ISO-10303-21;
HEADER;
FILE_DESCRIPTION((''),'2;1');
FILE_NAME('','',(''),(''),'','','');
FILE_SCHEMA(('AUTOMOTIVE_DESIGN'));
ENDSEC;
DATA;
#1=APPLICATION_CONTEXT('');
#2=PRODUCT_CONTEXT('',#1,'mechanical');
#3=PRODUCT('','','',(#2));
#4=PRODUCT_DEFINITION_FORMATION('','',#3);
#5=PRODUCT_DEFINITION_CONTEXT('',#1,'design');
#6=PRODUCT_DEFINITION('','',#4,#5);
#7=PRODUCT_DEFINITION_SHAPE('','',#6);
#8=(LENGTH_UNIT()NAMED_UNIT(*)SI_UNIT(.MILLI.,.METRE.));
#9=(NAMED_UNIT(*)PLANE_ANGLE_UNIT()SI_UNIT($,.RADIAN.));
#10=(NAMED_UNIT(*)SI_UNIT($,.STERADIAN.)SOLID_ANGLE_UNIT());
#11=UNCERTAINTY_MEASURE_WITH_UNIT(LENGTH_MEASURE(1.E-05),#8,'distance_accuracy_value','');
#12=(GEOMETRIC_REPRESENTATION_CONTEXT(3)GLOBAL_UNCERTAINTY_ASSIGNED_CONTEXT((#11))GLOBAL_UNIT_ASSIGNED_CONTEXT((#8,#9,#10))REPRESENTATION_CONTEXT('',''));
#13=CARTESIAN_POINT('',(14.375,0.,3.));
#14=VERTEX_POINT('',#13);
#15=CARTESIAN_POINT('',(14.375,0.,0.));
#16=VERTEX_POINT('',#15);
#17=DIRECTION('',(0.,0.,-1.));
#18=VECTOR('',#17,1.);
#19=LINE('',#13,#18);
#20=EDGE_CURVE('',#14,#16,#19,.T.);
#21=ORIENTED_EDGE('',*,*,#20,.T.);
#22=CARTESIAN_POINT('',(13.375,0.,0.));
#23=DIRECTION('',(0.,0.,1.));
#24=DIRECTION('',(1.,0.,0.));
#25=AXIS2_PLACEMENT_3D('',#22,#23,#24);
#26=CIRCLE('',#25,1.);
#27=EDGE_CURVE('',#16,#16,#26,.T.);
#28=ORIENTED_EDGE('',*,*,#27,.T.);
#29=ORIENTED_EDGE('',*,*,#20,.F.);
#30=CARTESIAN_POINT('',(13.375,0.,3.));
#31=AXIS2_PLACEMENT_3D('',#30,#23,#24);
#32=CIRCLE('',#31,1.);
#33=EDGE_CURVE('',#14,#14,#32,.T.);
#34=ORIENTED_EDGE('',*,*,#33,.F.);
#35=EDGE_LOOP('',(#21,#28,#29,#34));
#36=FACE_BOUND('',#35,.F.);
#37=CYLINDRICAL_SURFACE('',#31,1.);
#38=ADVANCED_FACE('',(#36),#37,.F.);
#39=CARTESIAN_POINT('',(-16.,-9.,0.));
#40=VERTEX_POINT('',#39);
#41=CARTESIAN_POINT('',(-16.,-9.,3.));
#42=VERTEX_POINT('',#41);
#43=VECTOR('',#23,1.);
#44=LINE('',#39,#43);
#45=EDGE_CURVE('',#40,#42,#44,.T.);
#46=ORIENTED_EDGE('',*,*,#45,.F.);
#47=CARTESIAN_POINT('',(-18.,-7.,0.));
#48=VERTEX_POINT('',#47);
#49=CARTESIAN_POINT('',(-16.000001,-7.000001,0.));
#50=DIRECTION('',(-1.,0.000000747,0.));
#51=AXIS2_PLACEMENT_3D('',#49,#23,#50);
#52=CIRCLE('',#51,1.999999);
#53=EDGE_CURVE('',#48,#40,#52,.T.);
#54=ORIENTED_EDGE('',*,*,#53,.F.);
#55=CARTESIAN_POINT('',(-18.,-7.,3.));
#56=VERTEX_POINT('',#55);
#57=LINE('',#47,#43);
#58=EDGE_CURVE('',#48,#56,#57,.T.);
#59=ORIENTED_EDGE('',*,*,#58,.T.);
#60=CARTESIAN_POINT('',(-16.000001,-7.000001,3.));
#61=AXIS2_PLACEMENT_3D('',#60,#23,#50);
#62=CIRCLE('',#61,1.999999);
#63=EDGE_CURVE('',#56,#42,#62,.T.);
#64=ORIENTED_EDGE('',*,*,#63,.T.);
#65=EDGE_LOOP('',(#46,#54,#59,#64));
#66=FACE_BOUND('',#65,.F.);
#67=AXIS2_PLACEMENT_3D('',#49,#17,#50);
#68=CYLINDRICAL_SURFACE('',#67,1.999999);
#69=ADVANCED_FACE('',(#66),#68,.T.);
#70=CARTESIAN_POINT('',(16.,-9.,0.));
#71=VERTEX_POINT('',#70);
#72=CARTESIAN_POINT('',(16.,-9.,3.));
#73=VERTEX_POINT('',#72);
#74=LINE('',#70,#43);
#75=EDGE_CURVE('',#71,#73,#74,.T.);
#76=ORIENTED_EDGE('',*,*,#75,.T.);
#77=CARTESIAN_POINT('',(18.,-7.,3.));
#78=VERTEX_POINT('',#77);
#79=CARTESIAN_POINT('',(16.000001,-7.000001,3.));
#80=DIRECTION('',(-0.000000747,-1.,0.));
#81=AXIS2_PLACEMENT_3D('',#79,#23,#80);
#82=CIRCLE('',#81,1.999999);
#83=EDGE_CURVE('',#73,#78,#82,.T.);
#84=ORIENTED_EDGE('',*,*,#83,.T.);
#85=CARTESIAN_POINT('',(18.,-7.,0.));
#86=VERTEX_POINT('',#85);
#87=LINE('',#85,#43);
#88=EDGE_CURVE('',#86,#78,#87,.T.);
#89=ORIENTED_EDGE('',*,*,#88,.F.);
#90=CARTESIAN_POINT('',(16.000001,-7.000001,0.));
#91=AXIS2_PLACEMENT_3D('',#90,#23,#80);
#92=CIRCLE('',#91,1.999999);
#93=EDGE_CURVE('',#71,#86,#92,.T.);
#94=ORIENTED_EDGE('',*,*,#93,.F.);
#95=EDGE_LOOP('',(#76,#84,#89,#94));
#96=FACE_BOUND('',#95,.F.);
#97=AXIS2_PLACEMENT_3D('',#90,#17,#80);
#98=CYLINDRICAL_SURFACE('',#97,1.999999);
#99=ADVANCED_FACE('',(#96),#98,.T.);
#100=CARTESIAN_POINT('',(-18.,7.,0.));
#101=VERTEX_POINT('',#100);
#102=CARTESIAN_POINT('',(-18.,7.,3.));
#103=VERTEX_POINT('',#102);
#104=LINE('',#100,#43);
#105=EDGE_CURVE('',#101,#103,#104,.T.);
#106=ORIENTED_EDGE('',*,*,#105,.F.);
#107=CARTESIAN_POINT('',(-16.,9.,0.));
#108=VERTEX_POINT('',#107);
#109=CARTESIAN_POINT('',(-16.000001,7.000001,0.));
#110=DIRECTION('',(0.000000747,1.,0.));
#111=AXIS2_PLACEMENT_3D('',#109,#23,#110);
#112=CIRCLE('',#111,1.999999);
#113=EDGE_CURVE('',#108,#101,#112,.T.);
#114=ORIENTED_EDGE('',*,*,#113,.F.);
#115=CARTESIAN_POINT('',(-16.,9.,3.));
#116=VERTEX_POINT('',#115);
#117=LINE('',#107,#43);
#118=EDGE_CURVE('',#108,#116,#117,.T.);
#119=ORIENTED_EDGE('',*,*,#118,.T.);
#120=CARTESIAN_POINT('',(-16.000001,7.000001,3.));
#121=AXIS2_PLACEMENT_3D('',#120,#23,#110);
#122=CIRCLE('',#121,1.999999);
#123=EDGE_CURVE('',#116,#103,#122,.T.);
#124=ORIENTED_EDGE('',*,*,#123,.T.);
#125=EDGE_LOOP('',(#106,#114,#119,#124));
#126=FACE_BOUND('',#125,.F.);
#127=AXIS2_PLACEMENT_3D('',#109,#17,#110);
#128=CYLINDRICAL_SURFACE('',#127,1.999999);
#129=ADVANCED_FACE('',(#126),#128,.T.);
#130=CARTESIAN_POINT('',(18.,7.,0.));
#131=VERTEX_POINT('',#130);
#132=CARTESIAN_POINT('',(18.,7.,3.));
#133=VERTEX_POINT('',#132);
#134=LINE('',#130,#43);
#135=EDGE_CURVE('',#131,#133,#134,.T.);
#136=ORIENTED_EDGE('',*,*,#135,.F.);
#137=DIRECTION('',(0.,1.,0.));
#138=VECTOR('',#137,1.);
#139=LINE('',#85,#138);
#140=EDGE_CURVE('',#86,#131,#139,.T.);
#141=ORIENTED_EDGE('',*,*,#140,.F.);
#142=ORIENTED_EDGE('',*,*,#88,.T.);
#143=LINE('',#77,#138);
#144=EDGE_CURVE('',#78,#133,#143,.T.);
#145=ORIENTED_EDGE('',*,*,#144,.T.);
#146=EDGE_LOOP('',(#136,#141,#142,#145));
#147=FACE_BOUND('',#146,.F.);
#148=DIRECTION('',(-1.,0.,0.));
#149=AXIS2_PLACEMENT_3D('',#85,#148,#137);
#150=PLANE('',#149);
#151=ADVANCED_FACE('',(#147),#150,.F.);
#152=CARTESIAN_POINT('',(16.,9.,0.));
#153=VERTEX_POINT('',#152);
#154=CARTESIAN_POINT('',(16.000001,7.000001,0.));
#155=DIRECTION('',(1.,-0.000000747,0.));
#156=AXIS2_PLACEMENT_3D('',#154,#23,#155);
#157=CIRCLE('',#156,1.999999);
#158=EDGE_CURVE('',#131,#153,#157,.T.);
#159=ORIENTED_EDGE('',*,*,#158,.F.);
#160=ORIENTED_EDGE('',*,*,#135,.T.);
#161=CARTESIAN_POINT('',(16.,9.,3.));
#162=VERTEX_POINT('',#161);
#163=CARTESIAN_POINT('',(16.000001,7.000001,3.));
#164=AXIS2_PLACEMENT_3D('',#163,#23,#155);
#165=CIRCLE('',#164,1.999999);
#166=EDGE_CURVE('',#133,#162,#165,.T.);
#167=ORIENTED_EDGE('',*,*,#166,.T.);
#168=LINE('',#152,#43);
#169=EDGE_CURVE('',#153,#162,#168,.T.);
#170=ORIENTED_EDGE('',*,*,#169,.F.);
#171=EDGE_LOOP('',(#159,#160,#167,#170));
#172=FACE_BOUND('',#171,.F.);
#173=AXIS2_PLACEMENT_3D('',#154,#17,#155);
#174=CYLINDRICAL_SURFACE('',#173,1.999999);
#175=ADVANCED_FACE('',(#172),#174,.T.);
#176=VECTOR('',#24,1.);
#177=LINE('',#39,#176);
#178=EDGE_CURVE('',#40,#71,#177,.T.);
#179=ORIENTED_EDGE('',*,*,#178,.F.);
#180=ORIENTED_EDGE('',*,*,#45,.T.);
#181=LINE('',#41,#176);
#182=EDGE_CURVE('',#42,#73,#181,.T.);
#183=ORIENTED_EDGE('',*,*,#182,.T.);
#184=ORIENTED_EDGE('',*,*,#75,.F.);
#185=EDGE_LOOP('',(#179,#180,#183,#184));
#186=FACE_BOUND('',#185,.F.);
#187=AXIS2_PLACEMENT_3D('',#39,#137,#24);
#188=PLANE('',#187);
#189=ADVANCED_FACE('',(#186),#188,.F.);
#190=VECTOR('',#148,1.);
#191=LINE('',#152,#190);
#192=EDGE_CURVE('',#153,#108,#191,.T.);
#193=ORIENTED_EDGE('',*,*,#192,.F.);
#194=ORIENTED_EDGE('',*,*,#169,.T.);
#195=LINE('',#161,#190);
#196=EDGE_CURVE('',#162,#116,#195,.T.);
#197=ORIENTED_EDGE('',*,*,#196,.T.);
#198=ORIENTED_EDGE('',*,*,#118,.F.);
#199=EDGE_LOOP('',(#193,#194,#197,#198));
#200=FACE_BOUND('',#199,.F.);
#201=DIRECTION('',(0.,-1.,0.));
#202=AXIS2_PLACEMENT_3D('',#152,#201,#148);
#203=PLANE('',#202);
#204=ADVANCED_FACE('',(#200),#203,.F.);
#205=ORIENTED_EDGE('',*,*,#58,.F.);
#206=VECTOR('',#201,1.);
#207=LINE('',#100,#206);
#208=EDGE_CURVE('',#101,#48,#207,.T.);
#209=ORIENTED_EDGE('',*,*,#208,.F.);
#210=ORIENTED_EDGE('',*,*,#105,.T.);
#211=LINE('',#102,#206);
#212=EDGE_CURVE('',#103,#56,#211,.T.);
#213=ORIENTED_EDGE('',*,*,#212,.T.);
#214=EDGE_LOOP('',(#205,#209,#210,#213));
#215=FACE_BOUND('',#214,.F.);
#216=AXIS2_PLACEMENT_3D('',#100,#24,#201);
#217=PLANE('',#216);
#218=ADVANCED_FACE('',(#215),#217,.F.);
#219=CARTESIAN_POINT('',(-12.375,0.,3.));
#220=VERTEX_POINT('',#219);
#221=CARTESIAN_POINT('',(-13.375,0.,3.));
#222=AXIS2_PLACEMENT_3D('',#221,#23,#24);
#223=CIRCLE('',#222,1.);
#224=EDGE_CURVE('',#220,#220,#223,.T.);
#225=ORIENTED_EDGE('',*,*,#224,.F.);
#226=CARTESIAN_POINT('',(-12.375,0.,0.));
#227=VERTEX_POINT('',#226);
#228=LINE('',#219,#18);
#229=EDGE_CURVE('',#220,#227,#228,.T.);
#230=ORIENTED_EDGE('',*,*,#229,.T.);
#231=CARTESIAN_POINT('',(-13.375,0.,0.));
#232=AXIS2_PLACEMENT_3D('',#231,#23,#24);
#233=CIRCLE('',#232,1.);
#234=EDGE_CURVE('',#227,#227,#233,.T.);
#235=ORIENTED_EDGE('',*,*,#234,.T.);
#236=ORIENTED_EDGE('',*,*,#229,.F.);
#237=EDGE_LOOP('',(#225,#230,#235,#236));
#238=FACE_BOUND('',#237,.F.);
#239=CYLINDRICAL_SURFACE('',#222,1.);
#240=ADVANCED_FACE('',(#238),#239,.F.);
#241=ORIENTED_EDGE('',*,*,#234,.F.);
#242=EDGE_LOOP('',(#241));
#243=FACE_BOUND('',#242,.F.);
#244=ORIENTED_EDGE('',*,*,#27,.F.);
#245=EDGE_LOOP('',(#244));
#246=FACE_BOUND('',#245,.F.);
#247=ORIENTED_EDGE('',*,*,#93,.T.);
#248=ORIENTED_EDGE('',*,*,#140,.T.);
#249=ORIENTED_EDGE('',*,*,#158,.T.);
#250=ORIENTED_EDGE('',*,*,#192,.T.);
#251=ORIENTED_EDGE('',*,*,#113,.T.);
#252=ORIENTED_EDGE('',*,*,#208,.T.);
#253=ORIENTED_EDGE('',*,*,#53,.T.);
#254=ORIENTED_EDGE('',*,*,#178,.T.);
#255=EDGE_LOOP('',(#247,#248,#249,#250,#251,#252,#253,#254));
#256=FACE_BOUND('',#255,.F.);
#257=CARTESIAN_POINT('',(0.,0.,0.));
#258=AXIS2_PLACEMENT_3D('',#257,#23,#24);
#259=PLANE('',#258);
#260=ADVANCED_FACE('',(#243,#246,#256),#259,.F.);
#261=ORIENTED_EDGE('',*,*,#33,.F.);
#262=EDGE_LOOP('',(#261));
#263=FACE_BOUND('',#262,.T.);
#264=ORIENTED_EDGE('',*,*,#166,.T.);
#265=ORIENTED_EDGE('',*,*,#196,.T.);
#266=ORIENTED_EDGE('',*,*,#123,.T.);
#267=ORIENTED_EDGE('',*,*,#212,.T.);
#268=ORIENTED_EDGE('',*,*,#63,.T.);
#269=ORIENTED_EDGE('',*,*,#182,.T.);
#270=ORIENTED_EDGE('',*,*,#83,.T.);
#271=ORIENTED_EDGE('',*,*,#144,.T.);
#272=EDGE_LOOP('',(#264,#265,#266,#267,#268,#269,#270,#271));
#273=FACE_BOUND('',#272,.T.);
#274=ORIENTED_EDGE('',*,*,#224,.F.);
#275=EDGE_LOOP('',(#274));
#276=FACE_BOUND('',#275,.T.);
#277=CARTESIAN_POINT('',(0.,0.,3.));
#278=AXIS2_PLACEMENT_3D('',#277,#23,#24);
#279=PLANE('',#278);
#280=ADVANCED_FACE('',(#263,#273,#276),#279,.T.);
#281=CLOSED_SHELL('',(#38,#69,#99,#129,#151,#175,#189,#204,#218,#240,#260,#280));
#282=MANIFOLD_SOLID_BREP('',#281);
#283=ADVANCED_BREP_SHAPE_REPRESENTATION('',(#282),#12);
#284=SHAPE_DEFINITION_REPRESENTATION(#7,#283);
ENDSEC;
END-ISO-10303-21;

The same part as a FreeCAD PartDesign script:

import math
import FreeCAD as App
import Part
import Sketcher
Q = App.Units.Quantity

doc = App.newDocument("Part")
params = doc.addObject("Spreadsheet::Sheet", "Params")
for row, (alias, value) in enumerate([
    ("sketch1_radius", "1.999999 mm"),
    ("sketch1_width", "32 mm"),
    ("sketch1_height", "14 mm"),
    ("pad1_length", "3 mm"),
    ("sketch2_diameter", "2 mm"),
], start=1):
    params.set(f"A{row}", alias)
    params.set(f"B{row}", "=" + value)
    params.setAlias(f"B{row}", alias)

body = doc.addObject("PartDesign::Body", "Body")

# Sketch on XY plane
sketch1 = body.newObject("Sketcher::SketchObject", "Sketch")
sketch1.AttachmentSupport = (doc.getObject("XY_Plane"), [""])
sketch1.MapMode = "FlatFace"
sketch1.addGeometry(Part.LineSegment(App.Vector(-16, -9, 0), App.Vector(16, -9, 0)), False)
sketch1.addGeometry(Part.ArcOfCircle(Part.Circle(App.Vector(16, -7, 0), App.Vector(0, 0, 1), 2), math.radians(-90), math.radians(0)), False)
sketch1.addGeometry(Part.LineSegment(App.Vector(18, -7, 0), App.Vector(18, 7, 0)), False)
sketch1.addGeometry(Part.ArcOfCircle(Part.Circle(App.Vector(16, 7, 0), App.Vector(0, 0, 1), 2), math.radians(0), math.radians(90)), False)
sketch1.addGeometry(Part.LineSegment(App.Vector(16, 9, 0), App.Vector(-16, 9, 0)), False)
sketch1.addGeometry(Part.ArcOfCircle(Part.Circle(App.Vector(-16, 7, 0), App.Vector(0, 0, 1), 2), math.radians(90), math.radians(180)), False)
sketch1.addGeometry(Part.LineSegment(App.Vector(-18, 7, 0), App.Vector(-18, -7, 0)), False)
sketch1.addGeometry(Part.ArcOfCircle(Part.Circle(App.Vector(-16, -7, 0), App.Vector(0, 0, 1), 2), math.radians(180), math.radians(270)), False)
sketch1.addConstraint(Sketcher.Constraint("Tangent", 0, 2, 1, 1))
sketch1.addConstraint(Sketcher.Constraint("Tangent", 1, 2, 2, 1))
sketch1.addConstraint(Sketcher.Constraint("Tangent", 2, 2, 3, 1))
sketch1.addConstraint(Sketcher.Constraint("Tangent", 3, 2, 4, 1))
sketch1.addConstraint(Sketcher.Constraint("Tangent", 4, 2, 5, 1))
sketch1.addConstraint(Sketcher.Constraint("Tangent", 5, 2, 6, 1))
sketch1.addConstraint(Sketcher.Constraint("Tangent", 6, 2, 7, 1))
sketch1.addConstraint(Sketcher.Constraint("Tangent", 7, 2, 0, 1))
sketch1.addConstraint(Sketcher.Constraint("Horizontal", 0))
sketch1.addConstraint(Sketcher.Constraint("Vertical", 2))
sketch1.addConstraint(Sketcher.Constraint("Horizontal", 4))
sketch1.addConstraint(Sketcher.Constraint("Vertical", 6))
sketch1.addConstraint(Sketcher.Constraint("Equal", 1, 3))
sketch1.addConstraint(Sketcher.Constraint("Equal", 3, 5))
sketch1.addConstraint(Sketcher.Constraint("Equal", 5, 7))
sketch1.addConstraint(Sketcher.Constraint("Symmetric", 1, 3, 5, 3, -1, 1))
sketch1.addConstraint(Sketcher.Constraint("Radius", 1, Q("1.999999 mm")))
sketch1.addConstraint(Sketcher.Constraint("DistanceX", 0, 1, 0, 2, Q("32 mm")))
sketch1.addConstraint(Sketcher.Constraint("DistanceY", 2, 1, 2, 2, Q("14 mm")))
sketch1.setExpression("Constraints[16]", "Params.sketch1_radius")
sketch1.setExpression("Constraints[17]", "Params.sketch1_width")
sketch1.setExpression("Constraints[18]", "Params.sketch1_height")
pad1 = body.newObject("PartDesign::Pad", "Pad")
pad1.Profile = sketch1
pad1.setExpression("Length", "Params.pad1_length")

# Sketch on XY plane
sketch2 = body.newObject("Sketcher::SketchObject", "Sketch001")
sketch2.AttachmentSupport = (doc.getObject("XY_Plane"), [""])
sketch2.MapMode = "FlatFace"
sketch2.AttachmentOffset = App.Placement(App.Vector(0, 0, 3), App.Rotation())
sketch2.addGeometry(Part.Circle(App.Vector(13.4, 0, 0), App.Vector(0, 0, 1), 1), False)
sketch2.addGeometry(Part.Circle(App.Vector(-13.4, 0, 0), App.Vector(0, 0, 1), 1), False)
sketch2.addConstraint(Sketcher.Constraint("Equal", 0, 1))
sketch2.addConstraint(Sketcher.Constraint("Symmetric", 0, 3, 1, 3, -1, 1))
sketch2.addConstraint(Sketcher.Constraint("PointOnObject", 0, 3, -1))
sketch2.addConstraint(Sketcher.Constraint("Diameter", 0, Q("2 mm")))
sketch2.addConstraint(Sketcher.Constraint("DistanceX", 1, 3, 0, 3, Q("26.75 mm")))
sketch2.setExpression("Constraints[3]", "Params.sketch2_diameter")
pocket1 = body.newObject("PartDesign::Pocket", "Pocket")
pocket1.Profile = sketch2
pocket1.Type = "ThroughAll"

doc.recompute()
